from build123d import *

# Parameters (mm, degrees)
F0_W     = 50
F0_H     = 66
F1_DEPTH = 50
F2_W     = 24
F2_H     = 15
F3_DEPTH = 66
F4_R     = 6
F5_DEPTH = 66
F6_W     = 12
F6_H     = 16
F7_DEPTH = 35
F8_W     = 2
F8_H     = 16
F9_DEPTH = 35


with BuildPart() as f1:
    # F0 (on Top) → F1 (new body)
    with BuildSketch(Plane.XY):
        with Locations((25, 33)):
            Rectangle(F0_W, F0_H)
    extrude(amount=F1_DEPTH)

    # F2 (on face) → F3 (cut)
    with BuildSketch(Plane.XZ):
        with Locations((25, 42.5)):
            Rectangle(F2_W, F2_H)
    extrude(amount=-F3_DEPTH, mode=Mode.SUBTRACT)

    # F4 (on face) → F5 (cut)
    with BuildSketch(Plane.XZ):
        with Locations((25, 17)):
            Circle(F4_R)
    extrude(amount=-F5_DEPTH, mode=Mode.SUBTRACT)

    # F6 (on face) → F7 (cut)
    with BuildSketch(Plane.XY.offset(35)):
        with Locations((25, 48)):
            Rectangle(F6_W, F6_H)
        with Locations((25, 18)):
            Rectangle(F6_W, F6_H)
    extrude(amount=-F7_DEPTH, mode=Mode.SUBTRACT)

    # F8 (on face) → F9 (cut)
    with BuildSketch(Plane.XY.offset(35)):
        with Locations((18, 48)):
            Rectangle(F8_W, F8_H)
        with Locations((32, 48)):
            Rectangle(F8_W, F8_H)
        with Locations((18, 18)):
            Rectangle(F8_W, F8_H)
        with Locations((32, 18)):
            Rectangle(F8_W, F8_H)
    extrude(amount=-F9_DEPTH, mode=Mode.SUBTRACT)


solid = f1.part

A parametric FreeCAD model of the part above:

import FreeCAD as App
import Part
import Sketcher
Q = App.Units.Quantity

doc = App.newDocument("Part")
body = doc.addObject("PartDesign::Body", "Body")

sketch1 = doc.addObject("Sketcher::SketchObject", "Sketch")
body.addObject(sketch1)
sketch1.AttachmentSupport = (doc.XY_Plane, [""])
sketch1.MapMode = "FlatFace"
sketch1.addGeometry([
    Part.LineSegment(App.Vector(0, 66, 0), App.Vector(0, 0, 0)),
    Part.LineSegment(App.Vector(0, 0, 0), App.Vector(50, 0, 0)),
    Part.LineSegment(App.Vector(50, 0, 0), App.Vector(50, 66, 0)),
    Part.LineSegment(App.Vector(50, 66, 0), App.Vector(0, 66, 0)),
], False)
sketch1.addConstraint([
    Sketcher.Constraint("Coincident", 0, 2, 1, 1),
    Sketcher.Constraint("Coincident", 1, 2, 2, 1),
    Sketcher.Constraint("Coincident", 2, 2, 3, 1),
    Sketcher.Constraint("Coincident", 3, 2, 0, 1),
    Sketcher.Constraint("Vertical", 0),
    Sketcher.Constraint("Horizontal", 1),
    Sketcher.Constraint("Vertical", 2),
    Sketcher.Constraint("Horizontal", 3),
    Sketcher.Constraint("Coincident", 0, 2, -1, 1),
    Sketcher.Constraint("DistanceX", 1, 1, 1, 2, Q("50 mm")),
    Sketcher.Constraint("DistanceY", 0, 2, 0, 1, Q("66 mm")),
])
pad1 = doc.addObject("PartDesign::Pad", "Pad")
body.addObject(pad1)
pad1.Profile = sketch1
pad1.Length = 50

sketch2 = doc.addObject("Sketcher::SketchObject", "Sketch001")
body.addObject(sketch2)
sketch2.AttachmentSupport = (doc.XZ_Plane, [""])
sketch2.MapMode = "FlatFace"
sketch2.addGeometry([
    Part.LineSegment(App.Vector(13, 50, 0), App.Vector(13, 35, 0)),
    Part.LineSegment(App.Vector(13, 35, 0), App.Vector(37, 35, 0)),
    Part.LineSegment(App.Vector(37, 35, 0), App.Vector(37, 50, 0)),
    Part.LineSegment(App.Vector(37, 50, 0), App.Vector(13, 50, 0)),
], False)
sketch2.addConstraint([
    Sketcher.Constraint("Coincident", 0, 2, 1, 1),
    Sketcher.Constraint("Coincident", 1, 2, 2, 1),
    Sketcher.Constraint("Coincident", 2, 2, 3, 1),
    Sketcher.Constraint("Coincident", 3, 2, 0, 1),
    Sketcher.Constraint("Vertical", 0),
    Sketcher.Constraint("Horizontal", 1),
    Sketcher.Constraint("Vertical", 2),
    Sketcher.Constraint("Horizontal", 3),
    Sketcher.Constraint("DistanceX", 1, 1, 1, 2, Q("24 mm")),
    Sketcher.Constraint("DistanceY", 0, 2, 0, 1, Q("15 mm")),
    Sketcher.Constraint("DistanceX", -1, 1, 0, 2, Q("13 mm")),
    Sketcher.Constraint("DistanceY", -1, 1, 0, 2, Q("35 mm")),
])
pocket1 = doc.addObject("PartDesign::Pocket", "Pocket")
body.addObject(pocket1)
pocket1.Profile = sketch2
pocket1.Length = 66

sketch3 = doc.addObject("Sketcher::SketchObject", "Sketch002")
body.addObject(sketch3)
sketch3.AttachmentSupport = (doc.XZ_Plane, [""])
sketch3.MapMode = "FlatFace"
sketch3.addGeometry(Part.Circle(App.Vector(25, 17, 0), App.Vector(0, 0, 1), 6), False)
sketch3.addConstraint([
    Sketcher.Constraint("Diameter", 0, Q("12 mm")),
    Sketcher.Constraint("DistanceX", -1, 1, 0, 3, Q("25 mm")),
    Sketcher.Constraint("DistanceY", -1, 1, 0, 3, Q("17 mm")),
])
pocket2 = doc.addObject("PartDesign::Pocket", "Pocket001")
body.addObject(pocket2)
pocket2.Profile = sketch3
pocket2.Length = 66

sketch4 = doc.addObject("Sketcher::SketchObject", "Sketch003")
body.addObject(sketch4)
sketch4.AttachmentSupport = (doc.XY_Plane, [""])
sketch4.MapMode = "FlatFace"
sketch4.AttachmentOffset = App.Placement(App.Vector(0, 0, 35), App.Rotation())
sketch4.addGeometry([
    Part.LineSegment(App.Vector(19, 56, 0), App.Vector(19, 40, 0)),
    Part.LineSegment(App.Vector(19, 40, 0), App.Vector(31, 40, 0)),
    Part.LineSegment(App.Vector(31, 40, 0), App.Vector(31, 56, 0)),
    Part.LineSegment(App.Vector(31, 56, 0), App.Vector(19, 56, 0)),
    Part.LineSegment(App.Vector(19, 26, 0), App.Vector(19, 10, 0)),
    Part.LineSegment(App.Vector(19, 10, 0), App.Vector(31, 10, 0)),
    Part.LineSegment(App.Vector(31, 10, 0), App.Vector(31, 26, 0)),
    Part.LineSegment(App.Vector(31, 26, 0), App.Vector(19, 26, 0)),
], False)
sketch4.addConstraint([
    Sketcher.Constraint("Coincident", 0, 2, 1, 1),
    Sketcher.Constraint("Coincident", 1, 2, 2, 1),
    Sketcher.Constraint("Coincident", 2, 2, 3, 1),
    Sketcher.Constraint("Coincident", 3, 2, 0, 1),
    Sketcher.Constraint("Coincident", 4, 2, 5, 1),
    Sketcher.Constraint("Coincident", 5, 2, 6, 1),
    Sketcher.Constraint("Coincident", 6, 2, 7, 1),
    Sketcher.Constraint("Coincident", 7, 2, 4, 1),
    Sketcher.Constraint("Vertical", 0),
    Sketcher.Constraint("Horizontal", 1),
    Sketcher.Constraint("Vertical", 2),
    Sketcher.Constraint("Horizontal", 3),
    Sketcher.Constraint("Vertical", 4),
    Sketcher.Constraint("Horizontal", 5),
    Sketcher.Constraint("Vertical", 6),
    Sketcher.Constraint("Horizontal", 7),
    Sketcher.Constraint("Vertical", 3, 2, 4, 2),
    Sketcher.Constraint("Vertical", 2, 2, 5, 2),
    Sketcher.Constraint("Equal", 2, 4),
    Sketcher.Constraint("DistanceX", 1, 1, 1, 2, Q("12 mm")),
    Sketcher.Constraint("DistanceY", 0, 2, 0, 1, Q("16 mm")),
    Sketcher.Constraint("DistanceX", -1, 1, 0, 2, Q("19 mm")),
    Sketcher.Constraint("DistanceY", -1, 1, 0, 2, Q("40 mm")),
    Sketcher.Constraint("DistanceY", -1, 1, 4, 2, Q("10 mm")),
])
pocket3 = doc.addObject("PartDesign::Pocket", "Pocket002")
body.addObject(pocket3)
pocket3.Profile = sketch4
pocket3.Length = 35

sketch5 = doc.addObject("Sketcher::SketchObject", "Sketch004")
body.addObject(sketch5)
sketch5.AttachmentSupport = (doc.XY_Plane, [""])
sketch5.MapMode = "FlatFace"
sketch5.AttachmentOffset = App.Placement(App.Vector(0, 0, 35), App.Rotation())
sketch5.addGeometry([
    Part.LineSegment(App.Vector(17, 56, 0), App.Vector(17, 40, 0)),
    Part.LineSegment(App.Vector(17, 40, 0), App.Vector(19, 40, 0)),
    Part.LineSegment(App.Vector(19, 40, 0), App.Vector(19, 56, 0)),
    Part.LineSegment(App.Vector(19, 56, 0), App.Vector(17, 56, 0)),
    Part.LineSegment(App.Vector(31, 56, 0), App.Vector(31, 40, 0)),
    Part.LineSegment(App.Vector(31, 40, 0), App.Vector(33, 40, 0)),
    Part.LineSegment(App.Vector(33, 40, 0), App.Vector(33, 56, 0)),
    Part.LineSegment(App.Vector(33, 56, 0), App.Vector(31, 56, 0)),
    Part.LineSegment(App.Vector(17, 26, 0), App.Vector(17, 10, 0)),
    Part.LineSegment(App.Vector(17, 10, 0), App.Vector(19, 10, 0)),
    Part.LineSegment(App.Vector(19, 10, 0), App.Vector(19, 26, 0)),
    Part.LineSegment(App.Vector(19, 26, 0), App.Vector(17, 26, 0)),
    Part.LineSegment(App.Vector(31, 26, 0), App.Vector(31, 10, 0)),
    Part.LineSegment(App.Vector(31, 10, 0), App.Vector(33, 10, 0)),
    Part.LineSegment(App.Vector(33, 10, 0), App.Vector(33, 26, 0)),
    Part.LineSegment(App.Vector(33, 26, 0), App.Vector(31, 26, 0)),
], False)
sketch5.addConstraint([
    Sketcher.Constraint("Coincident", 0, 2, 1, 1),
    Sketcher.Constraint("Coincident", 1, 2, 2, 1),
    Sketcher.Constraint("Coincident", 2, 2, 3, 1),
    Sketcher.Constraint("Coincident", 3, 2, 0, 1),
    Sketcher.Constraint("Coincident", 4, 2, 5, 1),
    Sketcher.Constraint("Coincident", 5, 2, 6, 1),
    Sketcher.Constraint("Coincident", 6, 2, 7, 1),
    Sketcher.Constraint("Coincident", 7, 2, 4, 1),
    Sketcher.Constraint("Coincident", 8, 2, 9, 1),
    Sketcher.Constraint("Coincident", 9, 2, 10, 1),
    Sketcher.Constraint("Coincident", 10, 2, 11, 1),
    Sketcher.Constraint("Coincident", 11, 2, 8, 1),
    Sketcher.Constraint("Coincident", 12, 2, 13, 1),
    Sketcher.Constraint("Coincident", 13, 2, 14, 1),
    Sketcher.Constraint("Coincident", 14, 2, 15, 1),
    Sketcher.Constraint("Coincident", 15, 2, 12, 1),
    Sketcher.Constraint("Vertical", 0),
    Sketcher.Constraint("Horizontal", 1),
    Sketcher.Constraint("Vertical", 2),
    Sketcher.Constraint("Horizontal", 3),
    Sketcher.Constraint("Vertical", 4),
    Sketcher.Constraint("Horizontal", 5),
    Sketcher.Constraint("Vertical", 6),
    Sketcher.Constraint("Horizontal", 7),
    Sketcher.Constraint("Vertical", 8),
    Sketcher.Constraint("Horizontal", 9),
    Sketcher.Constraint("Vertical", 10),
    Sketcher.Constraint("Horizontal", 11),
    Sketcher.Constraint("Vertical", 12),
    Sketcher.Constraint("Horizontal", 13),
    Sketcher.Constraint("Vertical", 14),
    Sketcher.Constraint("Horizontal", 15),
    Sketcher.Constraint("Horizontal", 1, 2, 4, 2),
    Sketcher.Constraint("Horizontal", 3, 2, 6, 2),
    Sketcher.Constraint("Horizontal", 9, 2, 12, 2),
    Sketcher.Constraint("Horizontal", 11, 2, 14, 2),
    Sketcher.Constraint("Vertical", 3, 2, 8, 2),
    Sketcher.Constraint("Vertical", 2, 2, 9, 2),
    Sketcher.Constraint("Vertical", 7, 2, 12, 2),
    Sketcher.Constraint("Vertical", 6, 2, 13, 2),
    Sketcher.Constraint("Equal", 3, 5),
    Sketcher.Constraint("Equal", 6, 8),
    Sketcher.Constraint("DistanceX", 1, 1, 1, 2, Q("2 mm")),
    Sketcher.Constraint("DistanceY", 0, 2, 0, 1, Q("16 mm")),
    Sketcher.Constraint("DistanceX", -1, 1, 0, 2, Q("17 mm")),
    Sketcher.Constraint("DistanceY", -1, 1, 0, 2, Q("40 mm")),
    Sketcher.Constraint("DistanceX", -1, 1, 4, 2, Q("31 mm")),
    Sketcher.Constraint("DistanceY", -1, 1, 8, 2, Q("10 mm")),
])
pocket4 = doc.addObject("PartDesign::Pocket", "Pocket003")
body.addObject(pocket4)
pocket4.Profile = sketch5
pocket4.Length = 35

doc.recompute()
